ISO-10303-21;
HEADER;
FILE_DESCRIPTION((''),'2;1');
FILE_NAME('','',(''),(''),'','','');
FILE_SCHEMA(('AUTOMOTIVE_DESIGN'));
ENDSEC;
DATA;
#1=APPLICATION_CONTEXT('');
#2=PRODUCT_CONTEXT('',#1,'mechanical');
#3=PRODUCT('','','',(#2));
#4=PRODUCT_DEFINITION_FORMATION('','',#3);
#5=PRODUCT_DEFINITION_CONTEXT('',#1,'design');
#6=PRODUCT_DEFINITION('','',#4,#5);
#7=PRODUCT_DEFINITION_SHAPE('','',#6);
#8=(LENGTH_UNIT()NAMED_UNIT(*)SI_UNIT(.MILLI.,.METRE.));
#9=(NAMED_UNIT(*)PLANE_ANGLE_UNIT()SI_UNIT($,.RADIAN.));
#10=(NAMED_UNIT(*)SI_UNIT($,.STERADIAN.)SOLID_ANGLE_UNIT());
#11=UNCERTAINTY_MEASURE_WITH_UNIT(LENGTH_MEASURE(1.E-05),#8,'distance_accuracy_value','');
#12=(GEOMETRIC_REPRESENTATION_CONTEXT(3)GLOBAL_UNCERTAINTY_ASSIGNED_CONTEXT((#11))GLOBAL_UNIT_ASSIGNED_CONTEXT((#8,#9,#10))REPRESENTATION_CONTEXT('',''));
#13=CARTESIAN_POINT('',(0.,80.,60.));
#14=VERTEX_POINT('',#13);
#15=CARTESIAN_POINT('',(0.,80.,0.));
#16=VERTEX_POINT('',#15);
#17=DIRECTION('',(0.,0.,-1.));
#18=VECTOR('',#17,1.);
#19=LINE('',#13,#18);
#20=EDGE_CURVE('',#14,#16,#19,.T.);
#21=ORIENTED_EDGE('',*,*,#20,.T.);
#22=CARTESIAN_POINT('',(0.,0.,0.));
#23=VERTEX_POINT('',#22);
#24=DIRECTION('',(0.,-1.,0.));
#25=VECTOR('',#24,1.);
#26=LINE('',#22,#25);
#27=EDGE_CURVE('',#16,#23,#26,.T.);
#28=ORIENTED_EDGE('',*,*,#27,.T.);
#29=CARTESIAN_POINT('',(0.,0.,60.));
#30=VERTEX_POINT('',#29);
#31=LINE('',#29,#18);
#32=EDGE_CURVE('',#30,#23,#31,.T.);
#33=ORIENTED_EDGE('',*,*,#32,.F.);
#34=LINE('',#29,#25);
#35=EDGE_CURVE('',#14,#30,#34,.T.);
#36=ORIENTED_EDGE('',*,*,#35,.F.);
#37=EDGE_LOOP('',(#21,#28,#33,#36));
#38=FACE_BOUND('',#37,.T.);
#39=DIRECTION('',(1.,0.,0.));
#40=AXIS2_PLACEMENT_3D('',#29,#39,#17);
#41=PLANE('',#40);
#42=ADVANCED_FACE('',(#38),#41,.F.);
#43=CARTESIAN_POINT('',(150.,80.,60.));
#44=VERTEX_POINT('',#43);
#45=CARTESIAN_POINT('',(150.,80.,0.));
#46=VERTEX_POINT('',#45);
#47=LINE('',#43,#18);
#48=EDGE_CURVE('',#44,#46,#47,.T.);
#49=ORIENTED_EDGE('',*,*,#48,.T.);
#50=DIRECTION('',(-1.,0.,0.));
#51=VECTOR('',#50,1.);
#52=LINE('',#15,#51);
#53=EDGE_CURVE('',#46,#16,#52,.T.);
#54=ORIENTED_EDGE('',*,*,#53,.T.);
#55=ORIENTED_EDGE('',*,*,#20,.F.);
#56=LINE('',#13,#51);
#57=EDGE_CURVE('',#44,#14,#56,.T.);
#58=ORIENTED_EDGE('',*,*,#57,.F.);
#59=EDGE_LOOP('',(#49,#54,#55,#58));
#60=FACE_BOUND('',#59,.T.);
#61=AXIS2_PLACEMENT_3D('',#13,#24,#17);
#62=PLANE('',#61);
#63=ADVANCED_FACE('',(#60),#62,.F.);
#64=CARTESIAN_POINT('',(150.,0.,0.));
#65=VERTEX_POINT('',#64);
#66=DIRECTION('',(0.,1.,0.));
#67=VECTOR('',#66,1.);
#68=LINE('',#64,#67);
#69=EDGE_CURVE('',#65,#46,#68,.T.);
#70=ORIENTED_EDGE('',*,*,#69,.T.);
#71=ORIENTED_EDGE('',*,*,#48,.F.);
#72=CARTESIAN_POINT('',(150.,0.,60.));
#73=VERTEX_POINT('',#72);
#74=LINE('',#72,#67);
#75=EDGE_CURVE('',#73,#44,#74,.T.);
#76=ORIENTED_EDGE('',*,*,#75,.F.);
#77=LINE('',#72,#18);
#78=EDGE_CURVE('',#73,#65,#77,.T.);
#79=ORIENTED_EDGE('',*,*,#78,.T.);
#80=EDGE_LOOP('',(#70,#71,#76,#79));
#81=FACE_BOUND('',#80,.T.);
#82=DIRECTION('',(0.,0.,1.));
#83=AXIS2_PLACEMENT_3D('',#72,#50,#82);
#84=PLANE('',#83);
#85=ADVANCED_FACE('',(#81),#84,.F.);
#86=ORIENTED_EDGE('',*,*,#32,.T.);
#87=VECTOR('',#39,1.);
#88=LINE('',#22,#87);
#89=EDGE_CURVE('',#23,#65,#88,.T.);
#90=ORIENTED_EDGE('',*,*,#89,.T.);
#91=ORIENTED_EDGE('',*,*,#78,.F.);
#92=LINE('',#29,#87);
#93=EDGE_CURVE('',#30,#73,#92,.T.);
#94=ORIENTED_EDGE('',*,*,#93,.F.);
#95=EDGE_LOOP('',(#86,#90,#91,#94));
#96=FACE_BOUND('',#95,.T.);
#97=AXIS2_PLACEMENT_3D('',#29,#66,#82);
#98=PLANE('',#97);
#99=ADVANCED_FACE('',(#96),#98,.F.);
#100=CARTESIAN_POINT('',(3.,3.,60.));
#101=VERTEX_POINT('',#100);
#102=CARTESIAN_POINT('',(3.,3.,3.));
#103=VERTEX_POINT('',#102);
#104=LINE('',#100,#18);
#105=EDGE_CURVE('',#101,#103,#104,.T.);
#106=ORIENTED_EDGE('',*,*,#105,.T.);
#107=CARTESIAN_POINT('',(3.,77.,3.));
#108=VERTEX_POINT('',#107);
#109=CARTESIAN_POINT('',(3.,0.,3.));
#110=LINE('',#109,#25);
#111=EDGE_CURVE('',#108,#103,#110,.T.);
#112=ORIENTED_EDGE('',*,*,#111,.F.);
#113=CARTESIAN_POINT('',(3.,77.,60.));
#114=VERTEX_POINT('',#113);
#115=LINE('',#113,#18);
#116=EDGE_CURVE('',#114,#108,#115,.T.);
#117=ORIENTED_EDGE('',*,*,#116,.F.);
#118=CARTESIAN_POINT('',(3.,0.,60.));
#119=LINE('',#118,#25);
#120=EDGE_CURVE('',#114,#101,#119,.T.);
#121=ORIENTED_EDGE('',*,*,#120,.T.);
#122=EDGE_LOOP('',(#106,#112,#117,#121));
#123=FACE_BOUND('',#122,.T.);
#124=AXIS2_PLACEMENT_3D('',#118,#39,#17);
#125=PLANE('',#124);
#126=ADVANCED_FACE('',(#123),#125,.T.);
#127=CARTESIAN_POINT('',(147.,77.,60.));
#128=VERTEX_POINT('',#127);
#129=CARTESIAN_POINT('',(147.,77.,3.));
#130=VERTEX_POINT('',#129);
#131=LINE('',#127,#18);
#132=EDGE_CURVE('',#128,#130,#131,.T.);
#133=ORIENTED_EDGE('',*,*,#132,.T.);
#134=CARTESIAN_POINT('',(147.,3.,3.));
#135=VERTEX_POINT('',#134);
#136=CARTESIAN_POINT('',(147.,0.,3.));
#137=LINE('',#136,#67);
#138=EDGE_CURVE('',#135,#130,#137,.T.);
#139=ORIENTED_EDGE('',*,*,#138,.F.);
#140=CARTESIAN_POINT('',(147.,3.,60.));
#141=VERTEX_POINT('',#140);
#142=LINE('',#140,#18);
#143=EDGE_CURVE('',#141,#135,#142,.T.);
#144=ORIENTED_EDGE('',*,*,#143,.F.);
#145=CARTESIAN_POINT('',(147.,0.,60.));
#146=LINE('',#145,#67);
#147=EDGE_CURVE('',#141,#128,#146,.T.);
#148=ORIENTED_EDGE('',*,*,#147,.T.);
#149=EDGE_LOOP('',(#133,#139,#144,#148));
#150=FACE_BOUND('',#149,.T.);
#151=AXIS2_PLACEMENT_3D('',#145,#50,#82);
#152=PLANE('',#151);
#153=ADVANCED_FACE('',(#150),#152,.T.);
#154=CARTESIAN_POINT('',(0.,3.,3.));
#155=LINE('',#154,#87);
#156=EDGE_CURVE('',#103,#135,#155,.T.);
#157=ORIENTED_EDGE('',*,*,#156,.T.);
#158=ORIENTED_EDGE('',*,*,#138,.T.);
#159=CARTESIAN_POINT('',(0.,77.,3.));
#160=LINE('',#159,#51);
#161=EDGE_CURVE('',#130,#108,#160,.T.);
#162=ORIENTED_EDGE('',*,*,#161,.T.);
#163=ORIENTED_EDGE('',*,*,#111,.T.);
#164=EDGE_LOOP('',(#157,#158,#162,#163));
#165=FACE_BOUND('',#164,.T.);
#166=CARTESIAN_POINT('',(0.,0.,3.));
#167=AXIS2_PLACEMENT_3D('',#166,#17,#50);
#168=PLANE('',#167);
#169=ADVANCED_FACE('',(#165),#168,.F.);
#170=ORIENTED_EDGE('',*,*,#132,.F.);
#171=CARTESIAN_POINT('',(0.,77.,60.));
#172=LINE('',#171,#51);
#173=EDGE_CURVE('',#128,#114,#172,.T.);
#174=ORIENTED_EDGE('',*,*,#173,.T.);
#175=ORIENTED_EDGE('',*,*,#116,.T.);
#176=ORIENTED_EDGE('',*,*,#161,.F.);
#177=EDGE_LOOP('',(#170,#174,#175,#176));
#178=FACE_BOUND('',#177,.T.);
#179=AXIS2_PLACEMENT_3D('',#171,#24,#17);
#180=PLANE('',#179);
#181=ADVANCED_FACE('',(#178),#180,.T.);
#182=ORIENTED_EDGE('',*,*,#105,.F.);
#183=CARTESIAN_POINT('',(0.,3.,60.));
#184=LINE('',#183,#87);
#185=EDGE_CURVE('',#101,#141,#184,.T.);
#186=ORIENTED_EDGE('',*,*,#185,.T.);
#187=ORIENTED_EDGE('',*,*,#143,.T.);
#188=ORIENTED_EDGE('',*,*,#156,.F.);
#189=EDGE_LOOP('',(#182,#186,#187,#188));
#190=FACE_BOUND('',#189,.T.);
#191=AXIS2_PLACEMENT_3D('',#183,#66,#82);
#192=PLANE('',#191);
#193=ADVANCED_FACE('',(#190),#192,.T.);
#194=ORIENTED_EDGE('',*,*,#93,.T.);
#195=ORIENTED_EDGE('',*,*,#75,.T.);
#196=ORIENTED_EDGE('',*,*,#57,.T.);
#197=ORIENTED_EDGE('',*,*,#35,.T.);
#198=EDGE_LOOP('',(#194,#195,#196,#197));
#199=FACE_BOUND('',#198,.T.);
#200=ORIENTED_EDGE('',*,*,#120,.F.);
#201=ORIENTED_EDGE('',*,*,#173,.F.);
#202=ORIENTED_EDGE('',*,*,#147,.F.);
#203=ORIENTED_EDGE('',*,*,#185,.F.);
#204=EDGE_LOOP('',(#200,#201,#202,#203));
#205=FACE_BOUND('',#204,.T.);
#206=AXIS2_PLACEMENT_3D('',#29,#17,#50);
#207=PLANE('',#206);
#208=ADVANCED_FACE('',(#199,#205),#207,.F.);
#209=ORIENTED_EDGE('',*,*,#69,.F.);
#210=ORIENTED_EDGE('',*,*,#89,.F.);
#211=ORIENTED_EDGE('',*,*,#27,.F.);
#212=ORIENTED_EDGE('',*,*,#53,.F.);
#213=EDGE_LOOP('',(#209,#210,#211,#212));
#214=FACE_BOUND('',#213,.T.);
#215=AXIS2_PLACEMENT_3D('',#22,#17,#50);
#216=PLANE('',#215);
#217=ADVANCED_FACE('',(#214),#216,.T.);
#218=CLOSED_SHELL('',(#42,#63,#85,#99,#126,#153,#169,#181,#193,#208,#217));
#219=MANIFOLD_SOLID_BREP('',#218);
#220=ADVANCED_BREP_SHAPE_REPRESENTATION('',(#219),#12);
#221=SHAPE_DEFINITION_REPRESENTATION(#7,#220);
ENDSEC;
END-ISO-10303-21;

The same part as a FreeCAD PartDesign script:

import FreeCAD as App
import Part
import Sketcher
from FreeCAD import Vector
Q = App.Units.Quantity


def faces_at(feature, points):
    """Names of the faces that lie closest to the given points."""
    faces = feature.Shape.Faces
    near = lambda p: min(range(len(faces)), key=lambda i: faces[i].distToShape(Part.Vertex(*p))[0])
    return sorted({f"Face{near(p) + 1}" for p in points})


def add_polygon(sketch, points):
    """Adds a closed chain of lines whose ends are joined by coincident constraints."""
    first, n = sketch.GeometryCount, len(points)
    for a, b in zip(points, points[1:] + points[:1]):
        sketch.addGeometry(Part.LineSegment(App.Vector(*a, 0), App.Vector(*b, 0)), False)
    for i in range(n):
        sketch.addConstraint(Sketcher.Constraint("Coincident", first + i, 2, first + (i + 1) % n, 1))

doc = App.newDocument("Part")
body = doc.addObject("PartDesign::Body", "Body")

# Sketch on XY plane
sketch1 = body.newObject("Sketcher::SketchObject", "Sketch")
sketch1.AttachmentSupport = (doc.getObject("XY_Plane"), [""])
sketch1.MapMode = "FlatFace"
add_polygon(sketch1, [(0, 80), (0, 0), (150, 0), (150, 80)])  # lines 0-3
sketch1.addConstraint([
    Sketcher.Constraint("Vertical", 0),
    Sketcher.Constraint("Horizontal", 1),
    Sketcher.Constraint("Vertical", 2),
    Sketcher.Constraint("Horizontal", 3),
    Sketcher.Constraint("Coincident", 0, 2, -1, 1),
    Sketcher.Constraint("DistanceX", 1, 1, 1, 2, Q("150 mm")),
    Sketcher.Constraint("DistanceY", 0, 2, 0, 1, Q("80 mm")),
])
pad1 = body.newObject("PartDesign::Pad", "Pad")
pad1.Profile = sketch1
pad1.Length = 60
doc.recompute()

thickness = body.newObject("PartDesign::Thickness", "Thickness")
thickness.Base = (pad1, faces_at(pad1, [(75, 40, 60)]))
thickness.Value = 3
thickness.Reversed = True
thickness.Join = "Intersection"

doc.recompute()
